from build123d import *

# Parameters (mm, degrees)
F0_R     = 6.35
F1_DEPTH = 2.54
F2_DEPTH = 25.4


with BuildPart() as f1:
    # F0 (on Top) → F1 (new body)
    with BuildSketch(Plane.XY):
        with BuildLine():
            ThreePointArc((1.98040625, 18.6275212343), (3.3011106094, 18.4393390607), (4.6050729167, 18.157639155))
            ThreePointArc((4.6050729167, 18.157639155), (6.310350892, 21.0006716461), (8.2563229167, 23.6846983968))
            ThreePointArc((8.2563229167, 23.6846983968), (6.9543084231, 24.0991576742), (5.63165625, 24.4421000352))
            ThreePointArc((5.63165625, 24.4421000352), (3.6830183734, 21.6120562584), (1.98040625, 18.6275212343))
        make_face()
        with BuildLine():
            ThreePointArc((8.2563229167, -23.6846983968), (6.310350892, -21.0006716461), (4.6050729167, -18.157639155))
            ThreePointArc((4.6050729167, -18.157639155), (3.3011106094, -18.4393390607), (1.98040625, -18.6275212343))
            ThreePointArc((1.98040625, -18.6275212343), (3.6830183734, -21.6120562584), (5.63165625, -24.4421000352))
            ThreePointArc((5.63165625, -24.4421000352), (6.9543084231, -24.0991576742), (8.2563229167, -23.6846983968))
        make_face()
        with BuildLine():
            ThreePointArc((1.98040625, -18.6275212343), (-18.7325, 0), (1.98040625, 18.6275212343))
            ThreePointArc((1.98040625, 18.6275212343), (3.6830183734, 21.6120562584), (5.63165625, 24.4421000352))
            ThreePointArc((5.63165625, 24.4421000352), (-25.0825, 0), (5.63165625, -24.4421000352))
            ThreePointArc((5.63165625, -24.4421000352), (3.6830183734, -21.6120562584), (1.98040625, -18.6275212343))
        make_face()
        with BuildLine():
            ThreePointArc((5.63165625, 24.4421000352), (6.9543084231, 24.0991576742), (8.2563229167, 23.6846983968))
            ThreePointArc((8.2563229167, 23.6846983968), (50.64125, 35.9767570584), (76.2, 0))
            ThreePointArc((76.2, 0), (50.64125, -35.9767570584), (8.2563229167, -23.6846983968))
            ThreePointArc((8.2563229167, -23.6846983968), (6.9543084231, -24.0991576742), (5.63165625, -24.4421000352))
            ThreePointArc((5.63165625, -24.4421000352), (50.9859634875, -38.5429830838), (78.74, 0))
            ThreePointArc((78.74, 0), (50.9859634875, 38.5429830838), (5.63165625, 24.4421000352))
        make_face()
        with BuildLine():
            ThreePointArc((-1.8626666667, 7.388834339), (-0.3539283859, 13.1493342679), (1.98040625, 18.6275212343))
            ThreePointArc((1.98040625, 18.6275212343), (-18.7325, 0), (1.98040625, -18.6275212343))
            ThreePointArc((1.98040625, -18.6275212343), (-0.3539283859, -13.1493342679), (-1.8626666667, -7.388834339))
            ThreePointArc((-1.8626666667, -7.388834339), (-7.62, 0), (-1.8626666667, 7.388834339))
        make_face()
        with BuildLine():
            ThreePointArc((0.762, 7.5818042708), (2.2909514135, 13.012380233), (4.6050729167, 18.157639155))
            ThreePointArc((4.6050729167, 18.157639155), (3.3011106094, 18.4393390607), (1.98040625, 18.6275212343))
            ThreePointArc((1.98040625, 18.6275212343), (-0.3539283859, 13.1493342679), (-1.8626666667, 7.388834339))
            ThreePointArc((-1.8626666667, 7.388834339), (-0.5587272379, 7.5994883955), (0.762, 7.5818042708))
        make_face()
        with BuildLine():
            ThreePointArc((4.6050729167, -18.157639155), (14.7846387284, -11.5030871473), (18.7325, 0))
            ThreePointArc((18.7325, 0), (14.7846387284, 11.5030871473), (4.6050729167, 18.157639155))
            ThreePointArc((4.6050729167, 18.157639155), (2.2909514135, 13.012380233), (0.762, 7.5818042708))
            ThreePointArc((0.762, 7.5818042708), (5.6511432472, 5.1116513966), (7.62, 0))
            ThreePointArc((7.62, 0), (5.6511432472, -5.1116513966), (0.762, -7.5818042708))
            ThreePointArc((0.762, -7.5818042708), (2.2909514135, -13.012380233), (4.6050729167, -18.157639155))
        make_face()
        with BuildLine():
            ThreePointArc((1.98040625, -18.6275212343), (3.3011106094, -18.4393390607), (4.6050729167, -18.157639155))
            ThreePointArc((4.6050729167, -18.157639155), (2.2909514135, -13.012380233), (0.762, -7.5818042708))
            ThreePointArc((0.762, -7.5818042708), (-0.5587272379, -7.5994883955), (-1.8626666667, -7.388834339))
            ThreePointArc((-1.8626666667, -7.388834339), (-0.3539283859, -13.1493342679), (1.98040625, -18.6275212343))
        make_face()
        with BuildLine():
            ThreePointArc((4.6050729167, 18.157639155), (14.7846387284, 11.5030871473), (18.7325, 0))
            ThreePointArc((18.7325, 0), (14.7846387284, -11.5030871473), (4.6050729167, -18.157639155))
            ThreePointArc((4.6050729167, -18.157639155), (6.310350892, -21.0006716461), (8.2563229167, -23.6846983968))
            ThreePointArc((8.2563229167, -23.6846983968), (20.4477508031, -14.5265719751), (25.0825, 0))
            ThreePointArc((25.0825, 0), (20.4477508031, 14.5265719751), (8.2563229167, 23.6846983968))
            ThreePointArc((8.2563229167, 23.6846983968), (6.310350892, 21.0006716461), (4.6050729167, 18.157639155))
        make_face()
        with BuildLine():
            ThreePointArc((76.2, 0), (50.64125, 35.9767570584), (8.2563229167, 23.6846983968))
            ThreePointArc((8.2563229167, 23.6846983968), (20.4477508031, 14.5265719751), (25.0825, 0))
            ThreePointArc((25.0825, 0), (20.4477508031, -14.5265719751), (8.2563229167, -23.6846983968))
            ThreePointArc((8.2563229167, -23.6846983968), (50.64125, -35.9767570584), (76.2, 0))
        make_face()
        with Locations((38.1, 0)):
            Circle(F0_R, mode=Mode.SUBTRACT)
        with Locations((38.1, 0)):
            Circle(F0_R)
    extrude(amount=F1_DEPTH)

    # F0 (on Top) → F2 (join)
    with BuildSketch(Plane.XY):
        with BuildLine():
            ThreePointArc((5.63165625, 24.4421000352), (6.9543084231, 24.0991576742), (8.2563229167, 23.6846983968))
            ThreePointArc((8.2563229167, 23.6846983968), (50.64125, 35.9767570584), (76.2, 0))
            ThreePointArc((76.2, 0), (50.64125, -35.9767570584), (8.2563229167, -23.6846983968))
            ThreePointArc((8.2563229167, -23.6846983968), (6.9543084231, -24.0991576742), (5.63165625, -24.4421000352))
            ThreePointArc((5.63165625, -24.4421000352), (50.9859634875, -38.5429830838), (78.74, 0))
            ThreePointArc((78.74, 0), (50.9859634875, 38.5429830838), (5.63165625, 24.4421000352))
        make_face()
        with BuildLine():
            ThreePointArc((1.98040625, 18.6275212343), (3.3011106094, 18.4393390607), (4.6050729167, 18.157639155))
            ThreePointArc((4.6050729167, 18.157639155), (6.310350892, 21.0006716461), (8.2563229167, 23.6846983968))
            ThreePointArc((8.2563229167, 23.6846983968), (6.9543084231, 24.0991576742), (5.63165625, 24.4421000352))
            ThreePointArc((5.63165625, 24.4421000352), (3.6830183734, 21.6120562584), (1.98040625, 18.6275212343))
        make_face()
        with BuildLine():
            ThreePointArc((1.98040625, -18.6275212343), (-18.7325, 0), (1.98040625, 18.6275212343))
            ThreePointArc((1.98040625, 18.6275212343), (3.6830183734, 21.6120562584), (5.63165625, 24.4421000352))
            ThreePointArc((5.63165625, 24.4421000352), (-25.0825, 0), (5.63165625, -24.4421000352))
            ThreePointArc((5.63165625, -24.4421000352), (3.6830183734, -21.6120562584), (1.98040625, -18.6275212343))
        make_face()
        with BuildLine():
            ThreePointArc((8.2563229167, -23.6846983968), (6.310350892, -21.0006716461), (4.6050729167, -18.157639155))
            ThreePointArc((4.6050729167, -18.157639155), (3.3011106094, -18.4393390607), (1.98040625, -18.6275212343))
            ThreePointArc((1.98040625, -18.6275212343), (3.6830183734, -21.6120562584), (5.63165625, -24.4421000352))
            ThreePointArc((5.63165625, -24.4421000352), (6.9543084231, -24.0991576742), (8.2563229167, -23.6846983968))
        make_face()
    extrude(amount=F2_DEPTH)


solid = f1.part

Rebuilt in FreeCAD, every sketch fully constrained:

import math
import FreeCAD as App
import Part
import Sketcher
Q = App.Units.Quantity

doc = App.newDocument("Part")
params = doc.addObject("Spreadsheet::Sheet", "Params")
for row, (alias, value) in enumerate([
    ("sketch1_radius", "1.6 in"),
    ("sketch1_radius2", "0.3 in"),
    ("pad1_length", "0.1 in"),
    ("sketch2_radius", "1.6 in"),
    ("sketch2_radius2", "1.5 in"),
    ("pad2_length", "1 in"),
], start=1):
    params.set(f"A{row}", alias)
    params.set(f"B{row}", "=" + value)
    params.setAlias(f"B{row}", alias)

body = doc.addObject("PartDesign::Body", "Body")

# Sketch on XY plane
sketch1 = body.newObject("Sketcher::SketchObject", "Sketch")
sketch1.AttachmentSupport = (doc.getObject("XY_Plane"), [""])
sketch1.MapMode = "FlatFace"
sketch1.addGeometry(Part.ArcOfCircle(Part.Circle(App.Vector(0, 0, 0), App.Vector(0, 0, 1), 25.0825), math.radians(77.025033), math.radians(282.974967)), False)
sketch1.addGeometry(Part.ArcOfCircle(Part.Circle(App.Vector(38.1, 0, 0), App.Vector(0, 0, 1), 40.64), math.radians(-143.027644), math.radians(143.027644)), False)
sketch1.addGeometry(Part.ArcOfCircle(Part.Circle(App.Vector(0, 0, 0), App.Vector(0, 0, 1), 7.62), math.radians(-84.26083), math.radians(0)), False)
sketch1.addGeometry(Part.ArcOfCircle(Part.Circle(App.Vector(0, 0, 0), App.Vector(0, 0, 1), 7.62), math.radians(-104.149005), math.radians(-84.26083)), False)
sketch1.addGeometry(Part.ArcOfCircle(Part.Circle(App.Vector(0, 0, 0), App.Vector(0, 0, 1), 7.62), math.radians(104.149005), math.radians(255.850995)), False)
sketch1.addGeometry(Part.ArcOfCircle(Part.Circle(App.Vector(0, 0, 0), App.Vector(0, 0, 1), 7.62), math.radians(84.26083), math.radians(104.149005)), False)
sketch1.addGeometry(Part.ArcOfCircle(Part.Circle(App.Vector(0, 0, 0), App.Vector(0, 0, 1), 7.62), math.radians(0), math.radians(84.26083)), False)
sketch1.addConstraint(Sketcher.Constraint("Coincident", 0, 1, 1, 2))
sketch1.addConstraint(Sketcher.Constraint("Coincident", 1, 1, 0, 2))
sketch1.addConstraint(Sketcher.Constraint("Tangent", 2, 1, 3, 2))
sketch1.addConstraint(Sketcher.Constraint("Tangent", 3, 1, 4, 2))
sketch1.addConstraint(Sketcher.Constraint("Tangent", 4, 1, 5, 2))
sketch1.addConstraint(Sketcher.Constraint("Tangent", 5, 1, 6, 2))
sketch1.addConstraint(Sketcher.Constraint("Tangent", 6, 1, 2, 2))
sketch1.addConstraint(Sketcher.Constraint("Coincident", 0, 3, -1, 1))
sketch1.addConstraint(Sketcher.Constraint("Coincident", 2, 3, -1, 1))
sketch1.addConstraint(Sketcher.Constraint("Coincident", 4, 3, -1, 1))
sketch1.addConstraint(Sketcher.Constraint("PointOnObject", 1, 3, -1))
sketch1.addConstraint(Sketcher.Constraint("PointOnObject", 6, 1, -1))
sketch1.addConstraint(Sketcher.Constraint("Vertical", 3, 1, 4, 1))
sketch1.addConstraint(Sketcher.Constraint("Vertical", 2, 1, 5, 1))
sketch1.addConstraint(Sketcher.Constraint("Radius", 1, Q("1.6 in")))
sketch1.addConstraint(Sketcher.Constraint("Radius", 2, Q("0.3 in")))
sketch1.addConstraint(Sketcher.Constraint("DistanceX", -1, 1, 1, 3, Q("1.5 in")))
sketch1.addConstraint(Sketcher.Constraint("Radius", 0, Q("0.9875 in")))
sketch1.addConstraint(Sketcher.Constraint("DistanceX", -1, 1, 2, 1, Q("0.03 in")))
sketch1.addConstraint(Sketcher.Constraint("DistanceY", 2, 1, 3, 1, Q("0.19297 mm")))
sketch1.setExpression("Constraints[14]", "Params.sketch1_radius")
sketch1.setExpression("Constraints[15]", "Params.sketch1_radius2")
pad1 = body.newObject("PartDesign::Pad", "Pad")
pad1.Profile = sketch1
pad1.setExpression("Length", "Params.pad1_length")

# Sketch on XY plane
sketch2 = body.newObject("Sketcher::SketchObject", "Sketch001")
sketch2.AttachmentSupport = (doc.getObject("XY_Plane"), [""])
sketch2.MapMode = "FlatFace"
sketch2.addGeometry(Part.ArcOfCircle(Part.Circle(App.Vector(0, 0, 0), App.Vector(0, 0, 1), 25.0825), math.radians(77.025033), math.radians(282.974967)), False)
sketch2.addGeometry(Part.ArcOfCircle(Part.Circle(App.Vector(38.1, 0, 0), App.Vector(0, 0, 1), 40.64), math.radians(-143.027644), math.radians(143.027644)), False)
sketch2.addGeometry(Part.ArcOfCircle(Part.Circle(App.Vector(38.1, 0, 0), App.Vector(0, 0, 1), 38.1), math.radians(-141.563593), math.radians(0)), False)
sketch2.addGeometry(Part.ArcOfCircle(Part.Circle(App.Vector(38.1, 0, 0), App.Vector(0, 0, 1), 38.1), math.radians(-151.537827), math.radians(-141.563593)), False)
sketch2.addGeometry(Part.ArcOfCircle(Part.Circle(App.Vector(0, 0, 0), App.Vector(0, 0, 1), 18.7325), math.radians(-83.93133), math.radians(-75.768914)), False)
sketch2.addGeometry(Part.ArcOfCircle(Part.Circle(App.Vector(0, 0, 0), App.Vector(0, 0, 1), 18.7325), math.radians(83.93133), math.radians(276.06867)), False)
sketch2.addGeometry(Part.ArcOfCircle(Part.Circle(App.Vector(0, 0, 0), App.Vector(0, 0, 1), 18.7325), math.radians(75.768914), math.radians(83.93133)), False)
sketch2.addGeometry(Part.ArcOfCircle(Part.Circle(App.Vector(38.1, 0, 0), App.Vector(0, 0, 1), 38.1), math.radians(141.563593), math.radians(151.537827)), False)
sketch2.addGeometry(Part.ArcOfCircle(Part.Circle(App.Vector(38.1, 0, 0), App.Vector(0, 0, 1), 38.1), math.radians(0), math.radians(141.563593)), False)
sketch2.addConstraint(Sketcher.Constraint("Coincident", 0, 1, 1, 2))
sketch2.addConstraint(Sketcher.Constraint("Coincident", 1, 1, 0, 2))
sketch2.addConstraint(Sketcher.Constraint("Tangent", 2, 1, 3, 2))
sketch2.addConstraint(Sketcher.Constraint("Coincident", 3, 1, 4, 2))
sketch2.addConstraint(Sketcher.Constraint("Tangent", 4, 1, 5, 2))
sketch2.addConstraint(Sketcher.Constraint("Tangent", 5, 1, 6, 2))
sketch2.addConstraint(Sketcher.Constraint("Coincident", 6, 1, 7, 2))
sketch2.addConstraint(Sketcher.Constraint("Tangent", 7, 1, 8, 2))
sketch2.addConstraint(Sketcher.Constraint("Tangent", 8, 1, 2, 2))
sketch2.addConstraint(Sketcher.Constraint("Coincident", 0, 3, -1, 1))
sketch2.addConstraint(Sketcher.Constraint("Coincident", 4, 3, -1, 1))
sketch2.addConstraint(Sketcher.Constraint("Coincident", 6, 3, -1, 1))
sketch2.addConstraint(Sketcher.Constraint("Coincident", 2, 3, 1, 3))
sketch2.addConstraint(Sketcher.Constraint("Coincident", 7, 3, 1, 3))
sketch2.addConstraint(Sketcher.Constraint("Equal", 2, 3))
sketch2.addConstraint(Sketcher.Constraint("Symmetric", 2, 1, 7, 1, -1))
sketch2.addConstraint(Sketcher.Constraint("PointOnObject", 8, 1, -1))
sketch2.addConstraint(Sketcher.Constraint("Vertical", 4, 1, 5, 1))
sketch2.addConstraint(Sketcher.Constraint("Radius", 1, Q("1.6 in")))
sketch2.addConstraint(Sketcher.Constraint("Radius", 2, Q("1.5 in")))
sketch2.addConstraint(Sketcher.Constraint("DistanceX", -1, 1, 8, 1, Q("3 in")))
sketch2.addConstraint(Sketcher.Constraint("Radius", 0, Q("0.9875 in")))
sketch2.addConstraint(Sketcher.Constraint("Radius", 4, Q("0.7375 in")))
sketch2.addConstraint(Sketcher.Constraint("DistanceY", 2, 1, -1, 1, Q("23.684698 mm")))
sketch2.addConstraint(Sketcher.Constraint("DistanceY", 4, 1, -1, 1, Q("18.627521 mm")))
sketch2.setExpression("Constraints[18]", "Params.sketch2_radius")
sketch2.setExpression("Constraints[19]", "Params.sketch2_radius2")
pad2 = body.newObject("PartDesign::Pad", "Pad001")
pad2.Profile = sketch2
pad2.setExpression("Length", "Params.pad2_length")

doc.recompute()
